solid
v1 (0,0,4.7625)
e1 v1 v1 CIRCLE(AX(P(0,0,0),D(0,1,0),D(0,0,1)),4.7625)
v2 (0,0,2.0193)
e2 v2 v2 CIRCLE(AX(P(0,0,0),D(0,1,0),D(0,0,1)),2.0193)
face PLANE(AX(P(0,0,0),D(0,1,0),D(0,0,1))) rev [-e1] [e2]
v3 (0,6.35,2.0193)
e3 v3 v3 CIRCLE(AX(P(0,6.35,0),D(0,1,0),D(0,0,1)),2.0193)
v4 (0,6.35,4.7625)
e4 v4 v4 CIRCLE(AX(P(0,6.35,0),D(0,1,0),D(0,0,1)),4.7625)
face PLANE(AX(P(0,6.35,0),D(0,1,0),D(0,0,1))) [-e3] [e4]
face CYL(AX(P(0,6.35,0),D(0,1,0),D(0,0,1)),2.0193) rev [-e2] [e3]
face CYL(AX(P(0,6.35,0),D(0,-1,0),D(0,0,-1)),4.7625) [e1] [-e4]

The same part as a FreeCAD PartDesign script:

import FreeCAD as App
import Part
import Sketcher
from FreeCAD import Vector
Q = App.Units.Quantity

doc = App.newDocument("Part")
body = doc.addObject("PartDesign::Body", "Body")

# Sketch on XZ plane
sketch1 = body.newObject("Sketcher::SketchObject", "Sketch")
sketch1.AttachmentSupport = (doc.getObject("XZ_Plane"), [""])
sketch1.MapMode = "FlatFace"
sketch1.addGeometry(Part.Circle(Vector(0, 0, 0), Vector(0, 0, 1), 4.8), False)
sketch1.addGeometry(Part.Circle(Vector(0, 0, 0), Vector(0, 0, 1), 0.6), False)
sketch1.addConstraint(Sketcher.Constraint("Coincident", 0, 3, -1, 1))
sketch1.addConstraint(Sketcher.Constraint("Coincident", 1, 3, -1, 1))
sketch1.addConstraint(Sketcher.Constraint("Diameter", 1, Q("0.05 in")))
sketch1.addConstraint(Sketcher.Constraint("Diameter", 0, Q("0.375 in")))
pad1 = body.newObject("PartDesign::Pad", "Pad")
pad1.Profile = sketch1
pad1.Length = Q("0.25 in")
pad1.Reversed = True

# Sketch on XZ plane
sketch2 = body.newObject("Sketcher::SketchObject", "Sketch001")
sketch2.AttachmentSupport = (doc.getObject("XZ_Plane"), [""])
sketch2.MapMode = "FlatFace"
sketch2.AttachmentOffset = App.Placement(Vector(0, 0, -0.25 * 25.4), App.Rotation())
sketch2.addGeometry(Part.Circle(Vector(0, 0, 0), Vector(0, 0, 1), 2), False)
sketch2.addConstraint(Sketcher.Constraint("Coincident", 0, 3, -1, 1))
sketch2.addConstraint(Sketcher.Constraint("Diameter", 0, Q("0.159 in")))
doc.recompute()
hole = body.newObject("PartDesign::Hole", "Hole")
hole.Profile = sketch2
hole.ThreadType = "None"
hole.Diameter = Q("0.159 in")
hole.DepthType = "ThroughAll"
hole.Reversed = True

doc.recompute()
